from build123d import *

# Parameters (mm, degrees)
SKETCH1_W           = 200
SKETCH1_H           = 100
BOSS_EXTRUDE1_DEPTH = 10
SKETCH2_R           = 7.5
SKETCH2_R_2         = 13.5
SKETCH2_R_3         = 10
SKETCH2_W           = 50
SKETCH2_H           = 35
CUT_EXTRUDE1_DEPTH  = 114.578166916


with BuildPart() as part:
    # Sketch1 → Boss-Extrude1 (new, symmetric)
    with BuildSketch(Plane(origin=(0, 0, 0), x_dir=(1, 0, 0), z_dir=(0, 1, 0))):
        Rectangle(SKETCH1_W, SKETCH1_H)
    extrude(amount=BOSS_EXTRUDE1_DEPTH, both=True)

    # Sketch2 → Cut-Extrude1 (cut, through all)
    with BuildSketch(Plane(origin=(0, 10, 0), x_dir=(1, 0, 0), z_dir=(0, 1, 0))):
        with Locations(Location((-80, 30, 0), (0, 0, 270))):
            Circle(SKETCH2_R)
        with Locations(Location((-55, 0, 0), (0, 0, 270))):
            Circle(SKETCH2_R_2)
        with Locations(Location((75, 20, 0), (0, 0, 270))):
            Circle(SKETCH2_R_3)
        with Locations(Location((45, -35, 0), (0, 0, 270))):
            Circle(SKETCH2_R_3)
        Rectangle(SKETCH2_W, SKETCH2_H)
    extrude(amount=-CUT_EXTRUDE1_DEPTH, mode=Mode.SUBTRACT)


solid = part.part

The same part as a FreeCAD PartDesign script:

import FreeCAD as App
import Part
import Sketcher

doc = App.newDocument("Part")
body = doc.addObject("PartDesign::Body", "Body")

sketch1 = doc.addObject("Sketcher::SketchObject", "Sketch")
body.addObject(sketch1)
sketch1.AttachmentSupport = (doc.XZ_Plane, [""])
sketch1.MapMode = "FlatFace"
sketch1.addGeometry([
    Part.LineSegment(App.Vector(-100, -50, 0), App.Vector(-100, 50, 0)),
    Part.LineSegment(App.Vector(-100, 50, 0), App.Vector(100, 50, 0)),
    Part.LineSegment(App.Vector(100, 50, 0), App.Vector(100, -50, 0)),
    Part.LineSegment(App.Vector(100, -50, 0), App.Vector(-100, -50, 0)),
], False)
sketch1.addConstraint([
    Sketcher.Constraint("Coincident", 0, 2, 1, 1),
    Sketcher.Constraint("Coincident", 1, 2, 2, 1),
    Sketcher.Constraint("Coincident", 2, 2, 3, 1),
    Sketcher.Constraint("Coincident", 3, 2, 0, 1),
    Sketcher.Constraint("Vertical", 0),
    Sketcher.Constraint("Horizontal", 1),
    Sketcher.Constraint("Vertical", 2),
    Sketcher.Constraint("Horizontal", 3),
    Sketcher.Constraint("Symmetric", 0, 2, 2, 2, -1, 1),
    Sketcher.Constraint("DistanceX", 1, 1, 1, 2, 200.0),
    Sketcher.Constraint("DistanceY", 0, 1, 0, 2, 100.0),
])
pad1 = doc.addObject("PartDesign::Pad", "Pad")
body.addObject(pad1)
pad1.Profile = sketch1
pad1.Length = 20
pad1.Midplane = True

sketch2 = doc.addObject("Sketcher::SketchObject", "Sketch001")
body.addObject(sketch2)
sketch2.AttachmentSupport = (doc.XZ_Plane, [""])
sketch2.MapMode = "FlatFace"
sketch2.AttachmentOffset = App.Placement(App.Vector(0, 0, -10), App.Rotation())
sketch2.addGeometry([
    Part.Circle(App.Vector(-80, -30, 0), App.Vector(0, 0, 1), 7.5),
    Part.Circle(App.Vector(-55, 0, 0), App.Vector(0, 0, 1), 13.5),
    Part.Circle(App.Vector(75, -20, 0), App.Vector(0, 0, 1), 10),
    Part.Circle(App.Vector(45, 35, 0), App.Vector(0, 0, 1), 10),
    Part.LineSegment(App.Vector(-25, -17.5, 0), App.Vector(-25, 17.5, 0)),
    Part.LineSegment(App.Vector(-25, 17.5, 0), App.Vector(25, 17.5, 0)),
    Part.LineSegment(App.Vector(25, 17.5, 0), App.Vector(25, -17.5, 0)),
    Part.LineSegment(App.Vector(25, -17.5, 0), App.Vector(-25, -17.5, 0)),
], False)
sketch2.addConstraint([
    Sketcher.Constraint("Coincident", 4, 2, 5, 1),
    Sketcher.Constraint("Coincident", 5, 2, 6, 1),
    Sketcher.Constraint("Coincident", 6, 2, 7, 1),
    Sketcher.Constraint("Coincident", 7, 2, 4, 1),
    Sketcher.Constraint("Vertical", 4),
    Sketcher.Constraint("Horizontal", 5),
    Sketcher.Constraint("Vertical", 6),
    Sketcher.Constraint("Horizontal", 7),
    Sketcher.Constraint("Equal", 2, 3),
    Sketcher.Constraint("Symmetric", 4, 2, 6, 2, -1, 1),
    Sketcher.Constraint("PointOnObject", 1, 3, -1),
    Sketcher.Constraint("Diameter", 0, 15.0),
    Sketcher.Constraint("Diameter", 1, 27.0),
    Sketcher.Constraint("Diameter", 2, 20.0),
    Sketcher.Constraint("DistanceX", 5, 1, 5, 2, 50.0),
    Sketcher.Constraint("DistanceY", 4, 1, 4, 2, 35.0),
    Sketcher.Constraint("DistanceX", 0, 3, -1, 1, 80.0),
    Sketcher.Constraint("DistanceY", 0, 3, -1, 1, 30.0),
    Sketcher.Constraint("DistanceX", 1, 3, -1, 1, 55.0),
    Sketcher.Constraint("DistanceX", -1, 1, 2, 3, 75.0),
    Sketcher.Constraint("DistanceY", 2, 3, -1, 1, 20.0),
    Sketcher.Constraint("DistanceX", -1, 1, 3, 3, 45.0),
    Sketcher.Constraint("DistanceY", -1, 1, 3, 3, 35.0),
])
pocket1 = doc.addObject("PartDesign::Pocket", "Pocket")
body.addObject(pocket1)
pocket1.Profile = sketch2
pocket1.Type = "ThroughAll"
pocket1.Reversed = True

doc.recompute()
